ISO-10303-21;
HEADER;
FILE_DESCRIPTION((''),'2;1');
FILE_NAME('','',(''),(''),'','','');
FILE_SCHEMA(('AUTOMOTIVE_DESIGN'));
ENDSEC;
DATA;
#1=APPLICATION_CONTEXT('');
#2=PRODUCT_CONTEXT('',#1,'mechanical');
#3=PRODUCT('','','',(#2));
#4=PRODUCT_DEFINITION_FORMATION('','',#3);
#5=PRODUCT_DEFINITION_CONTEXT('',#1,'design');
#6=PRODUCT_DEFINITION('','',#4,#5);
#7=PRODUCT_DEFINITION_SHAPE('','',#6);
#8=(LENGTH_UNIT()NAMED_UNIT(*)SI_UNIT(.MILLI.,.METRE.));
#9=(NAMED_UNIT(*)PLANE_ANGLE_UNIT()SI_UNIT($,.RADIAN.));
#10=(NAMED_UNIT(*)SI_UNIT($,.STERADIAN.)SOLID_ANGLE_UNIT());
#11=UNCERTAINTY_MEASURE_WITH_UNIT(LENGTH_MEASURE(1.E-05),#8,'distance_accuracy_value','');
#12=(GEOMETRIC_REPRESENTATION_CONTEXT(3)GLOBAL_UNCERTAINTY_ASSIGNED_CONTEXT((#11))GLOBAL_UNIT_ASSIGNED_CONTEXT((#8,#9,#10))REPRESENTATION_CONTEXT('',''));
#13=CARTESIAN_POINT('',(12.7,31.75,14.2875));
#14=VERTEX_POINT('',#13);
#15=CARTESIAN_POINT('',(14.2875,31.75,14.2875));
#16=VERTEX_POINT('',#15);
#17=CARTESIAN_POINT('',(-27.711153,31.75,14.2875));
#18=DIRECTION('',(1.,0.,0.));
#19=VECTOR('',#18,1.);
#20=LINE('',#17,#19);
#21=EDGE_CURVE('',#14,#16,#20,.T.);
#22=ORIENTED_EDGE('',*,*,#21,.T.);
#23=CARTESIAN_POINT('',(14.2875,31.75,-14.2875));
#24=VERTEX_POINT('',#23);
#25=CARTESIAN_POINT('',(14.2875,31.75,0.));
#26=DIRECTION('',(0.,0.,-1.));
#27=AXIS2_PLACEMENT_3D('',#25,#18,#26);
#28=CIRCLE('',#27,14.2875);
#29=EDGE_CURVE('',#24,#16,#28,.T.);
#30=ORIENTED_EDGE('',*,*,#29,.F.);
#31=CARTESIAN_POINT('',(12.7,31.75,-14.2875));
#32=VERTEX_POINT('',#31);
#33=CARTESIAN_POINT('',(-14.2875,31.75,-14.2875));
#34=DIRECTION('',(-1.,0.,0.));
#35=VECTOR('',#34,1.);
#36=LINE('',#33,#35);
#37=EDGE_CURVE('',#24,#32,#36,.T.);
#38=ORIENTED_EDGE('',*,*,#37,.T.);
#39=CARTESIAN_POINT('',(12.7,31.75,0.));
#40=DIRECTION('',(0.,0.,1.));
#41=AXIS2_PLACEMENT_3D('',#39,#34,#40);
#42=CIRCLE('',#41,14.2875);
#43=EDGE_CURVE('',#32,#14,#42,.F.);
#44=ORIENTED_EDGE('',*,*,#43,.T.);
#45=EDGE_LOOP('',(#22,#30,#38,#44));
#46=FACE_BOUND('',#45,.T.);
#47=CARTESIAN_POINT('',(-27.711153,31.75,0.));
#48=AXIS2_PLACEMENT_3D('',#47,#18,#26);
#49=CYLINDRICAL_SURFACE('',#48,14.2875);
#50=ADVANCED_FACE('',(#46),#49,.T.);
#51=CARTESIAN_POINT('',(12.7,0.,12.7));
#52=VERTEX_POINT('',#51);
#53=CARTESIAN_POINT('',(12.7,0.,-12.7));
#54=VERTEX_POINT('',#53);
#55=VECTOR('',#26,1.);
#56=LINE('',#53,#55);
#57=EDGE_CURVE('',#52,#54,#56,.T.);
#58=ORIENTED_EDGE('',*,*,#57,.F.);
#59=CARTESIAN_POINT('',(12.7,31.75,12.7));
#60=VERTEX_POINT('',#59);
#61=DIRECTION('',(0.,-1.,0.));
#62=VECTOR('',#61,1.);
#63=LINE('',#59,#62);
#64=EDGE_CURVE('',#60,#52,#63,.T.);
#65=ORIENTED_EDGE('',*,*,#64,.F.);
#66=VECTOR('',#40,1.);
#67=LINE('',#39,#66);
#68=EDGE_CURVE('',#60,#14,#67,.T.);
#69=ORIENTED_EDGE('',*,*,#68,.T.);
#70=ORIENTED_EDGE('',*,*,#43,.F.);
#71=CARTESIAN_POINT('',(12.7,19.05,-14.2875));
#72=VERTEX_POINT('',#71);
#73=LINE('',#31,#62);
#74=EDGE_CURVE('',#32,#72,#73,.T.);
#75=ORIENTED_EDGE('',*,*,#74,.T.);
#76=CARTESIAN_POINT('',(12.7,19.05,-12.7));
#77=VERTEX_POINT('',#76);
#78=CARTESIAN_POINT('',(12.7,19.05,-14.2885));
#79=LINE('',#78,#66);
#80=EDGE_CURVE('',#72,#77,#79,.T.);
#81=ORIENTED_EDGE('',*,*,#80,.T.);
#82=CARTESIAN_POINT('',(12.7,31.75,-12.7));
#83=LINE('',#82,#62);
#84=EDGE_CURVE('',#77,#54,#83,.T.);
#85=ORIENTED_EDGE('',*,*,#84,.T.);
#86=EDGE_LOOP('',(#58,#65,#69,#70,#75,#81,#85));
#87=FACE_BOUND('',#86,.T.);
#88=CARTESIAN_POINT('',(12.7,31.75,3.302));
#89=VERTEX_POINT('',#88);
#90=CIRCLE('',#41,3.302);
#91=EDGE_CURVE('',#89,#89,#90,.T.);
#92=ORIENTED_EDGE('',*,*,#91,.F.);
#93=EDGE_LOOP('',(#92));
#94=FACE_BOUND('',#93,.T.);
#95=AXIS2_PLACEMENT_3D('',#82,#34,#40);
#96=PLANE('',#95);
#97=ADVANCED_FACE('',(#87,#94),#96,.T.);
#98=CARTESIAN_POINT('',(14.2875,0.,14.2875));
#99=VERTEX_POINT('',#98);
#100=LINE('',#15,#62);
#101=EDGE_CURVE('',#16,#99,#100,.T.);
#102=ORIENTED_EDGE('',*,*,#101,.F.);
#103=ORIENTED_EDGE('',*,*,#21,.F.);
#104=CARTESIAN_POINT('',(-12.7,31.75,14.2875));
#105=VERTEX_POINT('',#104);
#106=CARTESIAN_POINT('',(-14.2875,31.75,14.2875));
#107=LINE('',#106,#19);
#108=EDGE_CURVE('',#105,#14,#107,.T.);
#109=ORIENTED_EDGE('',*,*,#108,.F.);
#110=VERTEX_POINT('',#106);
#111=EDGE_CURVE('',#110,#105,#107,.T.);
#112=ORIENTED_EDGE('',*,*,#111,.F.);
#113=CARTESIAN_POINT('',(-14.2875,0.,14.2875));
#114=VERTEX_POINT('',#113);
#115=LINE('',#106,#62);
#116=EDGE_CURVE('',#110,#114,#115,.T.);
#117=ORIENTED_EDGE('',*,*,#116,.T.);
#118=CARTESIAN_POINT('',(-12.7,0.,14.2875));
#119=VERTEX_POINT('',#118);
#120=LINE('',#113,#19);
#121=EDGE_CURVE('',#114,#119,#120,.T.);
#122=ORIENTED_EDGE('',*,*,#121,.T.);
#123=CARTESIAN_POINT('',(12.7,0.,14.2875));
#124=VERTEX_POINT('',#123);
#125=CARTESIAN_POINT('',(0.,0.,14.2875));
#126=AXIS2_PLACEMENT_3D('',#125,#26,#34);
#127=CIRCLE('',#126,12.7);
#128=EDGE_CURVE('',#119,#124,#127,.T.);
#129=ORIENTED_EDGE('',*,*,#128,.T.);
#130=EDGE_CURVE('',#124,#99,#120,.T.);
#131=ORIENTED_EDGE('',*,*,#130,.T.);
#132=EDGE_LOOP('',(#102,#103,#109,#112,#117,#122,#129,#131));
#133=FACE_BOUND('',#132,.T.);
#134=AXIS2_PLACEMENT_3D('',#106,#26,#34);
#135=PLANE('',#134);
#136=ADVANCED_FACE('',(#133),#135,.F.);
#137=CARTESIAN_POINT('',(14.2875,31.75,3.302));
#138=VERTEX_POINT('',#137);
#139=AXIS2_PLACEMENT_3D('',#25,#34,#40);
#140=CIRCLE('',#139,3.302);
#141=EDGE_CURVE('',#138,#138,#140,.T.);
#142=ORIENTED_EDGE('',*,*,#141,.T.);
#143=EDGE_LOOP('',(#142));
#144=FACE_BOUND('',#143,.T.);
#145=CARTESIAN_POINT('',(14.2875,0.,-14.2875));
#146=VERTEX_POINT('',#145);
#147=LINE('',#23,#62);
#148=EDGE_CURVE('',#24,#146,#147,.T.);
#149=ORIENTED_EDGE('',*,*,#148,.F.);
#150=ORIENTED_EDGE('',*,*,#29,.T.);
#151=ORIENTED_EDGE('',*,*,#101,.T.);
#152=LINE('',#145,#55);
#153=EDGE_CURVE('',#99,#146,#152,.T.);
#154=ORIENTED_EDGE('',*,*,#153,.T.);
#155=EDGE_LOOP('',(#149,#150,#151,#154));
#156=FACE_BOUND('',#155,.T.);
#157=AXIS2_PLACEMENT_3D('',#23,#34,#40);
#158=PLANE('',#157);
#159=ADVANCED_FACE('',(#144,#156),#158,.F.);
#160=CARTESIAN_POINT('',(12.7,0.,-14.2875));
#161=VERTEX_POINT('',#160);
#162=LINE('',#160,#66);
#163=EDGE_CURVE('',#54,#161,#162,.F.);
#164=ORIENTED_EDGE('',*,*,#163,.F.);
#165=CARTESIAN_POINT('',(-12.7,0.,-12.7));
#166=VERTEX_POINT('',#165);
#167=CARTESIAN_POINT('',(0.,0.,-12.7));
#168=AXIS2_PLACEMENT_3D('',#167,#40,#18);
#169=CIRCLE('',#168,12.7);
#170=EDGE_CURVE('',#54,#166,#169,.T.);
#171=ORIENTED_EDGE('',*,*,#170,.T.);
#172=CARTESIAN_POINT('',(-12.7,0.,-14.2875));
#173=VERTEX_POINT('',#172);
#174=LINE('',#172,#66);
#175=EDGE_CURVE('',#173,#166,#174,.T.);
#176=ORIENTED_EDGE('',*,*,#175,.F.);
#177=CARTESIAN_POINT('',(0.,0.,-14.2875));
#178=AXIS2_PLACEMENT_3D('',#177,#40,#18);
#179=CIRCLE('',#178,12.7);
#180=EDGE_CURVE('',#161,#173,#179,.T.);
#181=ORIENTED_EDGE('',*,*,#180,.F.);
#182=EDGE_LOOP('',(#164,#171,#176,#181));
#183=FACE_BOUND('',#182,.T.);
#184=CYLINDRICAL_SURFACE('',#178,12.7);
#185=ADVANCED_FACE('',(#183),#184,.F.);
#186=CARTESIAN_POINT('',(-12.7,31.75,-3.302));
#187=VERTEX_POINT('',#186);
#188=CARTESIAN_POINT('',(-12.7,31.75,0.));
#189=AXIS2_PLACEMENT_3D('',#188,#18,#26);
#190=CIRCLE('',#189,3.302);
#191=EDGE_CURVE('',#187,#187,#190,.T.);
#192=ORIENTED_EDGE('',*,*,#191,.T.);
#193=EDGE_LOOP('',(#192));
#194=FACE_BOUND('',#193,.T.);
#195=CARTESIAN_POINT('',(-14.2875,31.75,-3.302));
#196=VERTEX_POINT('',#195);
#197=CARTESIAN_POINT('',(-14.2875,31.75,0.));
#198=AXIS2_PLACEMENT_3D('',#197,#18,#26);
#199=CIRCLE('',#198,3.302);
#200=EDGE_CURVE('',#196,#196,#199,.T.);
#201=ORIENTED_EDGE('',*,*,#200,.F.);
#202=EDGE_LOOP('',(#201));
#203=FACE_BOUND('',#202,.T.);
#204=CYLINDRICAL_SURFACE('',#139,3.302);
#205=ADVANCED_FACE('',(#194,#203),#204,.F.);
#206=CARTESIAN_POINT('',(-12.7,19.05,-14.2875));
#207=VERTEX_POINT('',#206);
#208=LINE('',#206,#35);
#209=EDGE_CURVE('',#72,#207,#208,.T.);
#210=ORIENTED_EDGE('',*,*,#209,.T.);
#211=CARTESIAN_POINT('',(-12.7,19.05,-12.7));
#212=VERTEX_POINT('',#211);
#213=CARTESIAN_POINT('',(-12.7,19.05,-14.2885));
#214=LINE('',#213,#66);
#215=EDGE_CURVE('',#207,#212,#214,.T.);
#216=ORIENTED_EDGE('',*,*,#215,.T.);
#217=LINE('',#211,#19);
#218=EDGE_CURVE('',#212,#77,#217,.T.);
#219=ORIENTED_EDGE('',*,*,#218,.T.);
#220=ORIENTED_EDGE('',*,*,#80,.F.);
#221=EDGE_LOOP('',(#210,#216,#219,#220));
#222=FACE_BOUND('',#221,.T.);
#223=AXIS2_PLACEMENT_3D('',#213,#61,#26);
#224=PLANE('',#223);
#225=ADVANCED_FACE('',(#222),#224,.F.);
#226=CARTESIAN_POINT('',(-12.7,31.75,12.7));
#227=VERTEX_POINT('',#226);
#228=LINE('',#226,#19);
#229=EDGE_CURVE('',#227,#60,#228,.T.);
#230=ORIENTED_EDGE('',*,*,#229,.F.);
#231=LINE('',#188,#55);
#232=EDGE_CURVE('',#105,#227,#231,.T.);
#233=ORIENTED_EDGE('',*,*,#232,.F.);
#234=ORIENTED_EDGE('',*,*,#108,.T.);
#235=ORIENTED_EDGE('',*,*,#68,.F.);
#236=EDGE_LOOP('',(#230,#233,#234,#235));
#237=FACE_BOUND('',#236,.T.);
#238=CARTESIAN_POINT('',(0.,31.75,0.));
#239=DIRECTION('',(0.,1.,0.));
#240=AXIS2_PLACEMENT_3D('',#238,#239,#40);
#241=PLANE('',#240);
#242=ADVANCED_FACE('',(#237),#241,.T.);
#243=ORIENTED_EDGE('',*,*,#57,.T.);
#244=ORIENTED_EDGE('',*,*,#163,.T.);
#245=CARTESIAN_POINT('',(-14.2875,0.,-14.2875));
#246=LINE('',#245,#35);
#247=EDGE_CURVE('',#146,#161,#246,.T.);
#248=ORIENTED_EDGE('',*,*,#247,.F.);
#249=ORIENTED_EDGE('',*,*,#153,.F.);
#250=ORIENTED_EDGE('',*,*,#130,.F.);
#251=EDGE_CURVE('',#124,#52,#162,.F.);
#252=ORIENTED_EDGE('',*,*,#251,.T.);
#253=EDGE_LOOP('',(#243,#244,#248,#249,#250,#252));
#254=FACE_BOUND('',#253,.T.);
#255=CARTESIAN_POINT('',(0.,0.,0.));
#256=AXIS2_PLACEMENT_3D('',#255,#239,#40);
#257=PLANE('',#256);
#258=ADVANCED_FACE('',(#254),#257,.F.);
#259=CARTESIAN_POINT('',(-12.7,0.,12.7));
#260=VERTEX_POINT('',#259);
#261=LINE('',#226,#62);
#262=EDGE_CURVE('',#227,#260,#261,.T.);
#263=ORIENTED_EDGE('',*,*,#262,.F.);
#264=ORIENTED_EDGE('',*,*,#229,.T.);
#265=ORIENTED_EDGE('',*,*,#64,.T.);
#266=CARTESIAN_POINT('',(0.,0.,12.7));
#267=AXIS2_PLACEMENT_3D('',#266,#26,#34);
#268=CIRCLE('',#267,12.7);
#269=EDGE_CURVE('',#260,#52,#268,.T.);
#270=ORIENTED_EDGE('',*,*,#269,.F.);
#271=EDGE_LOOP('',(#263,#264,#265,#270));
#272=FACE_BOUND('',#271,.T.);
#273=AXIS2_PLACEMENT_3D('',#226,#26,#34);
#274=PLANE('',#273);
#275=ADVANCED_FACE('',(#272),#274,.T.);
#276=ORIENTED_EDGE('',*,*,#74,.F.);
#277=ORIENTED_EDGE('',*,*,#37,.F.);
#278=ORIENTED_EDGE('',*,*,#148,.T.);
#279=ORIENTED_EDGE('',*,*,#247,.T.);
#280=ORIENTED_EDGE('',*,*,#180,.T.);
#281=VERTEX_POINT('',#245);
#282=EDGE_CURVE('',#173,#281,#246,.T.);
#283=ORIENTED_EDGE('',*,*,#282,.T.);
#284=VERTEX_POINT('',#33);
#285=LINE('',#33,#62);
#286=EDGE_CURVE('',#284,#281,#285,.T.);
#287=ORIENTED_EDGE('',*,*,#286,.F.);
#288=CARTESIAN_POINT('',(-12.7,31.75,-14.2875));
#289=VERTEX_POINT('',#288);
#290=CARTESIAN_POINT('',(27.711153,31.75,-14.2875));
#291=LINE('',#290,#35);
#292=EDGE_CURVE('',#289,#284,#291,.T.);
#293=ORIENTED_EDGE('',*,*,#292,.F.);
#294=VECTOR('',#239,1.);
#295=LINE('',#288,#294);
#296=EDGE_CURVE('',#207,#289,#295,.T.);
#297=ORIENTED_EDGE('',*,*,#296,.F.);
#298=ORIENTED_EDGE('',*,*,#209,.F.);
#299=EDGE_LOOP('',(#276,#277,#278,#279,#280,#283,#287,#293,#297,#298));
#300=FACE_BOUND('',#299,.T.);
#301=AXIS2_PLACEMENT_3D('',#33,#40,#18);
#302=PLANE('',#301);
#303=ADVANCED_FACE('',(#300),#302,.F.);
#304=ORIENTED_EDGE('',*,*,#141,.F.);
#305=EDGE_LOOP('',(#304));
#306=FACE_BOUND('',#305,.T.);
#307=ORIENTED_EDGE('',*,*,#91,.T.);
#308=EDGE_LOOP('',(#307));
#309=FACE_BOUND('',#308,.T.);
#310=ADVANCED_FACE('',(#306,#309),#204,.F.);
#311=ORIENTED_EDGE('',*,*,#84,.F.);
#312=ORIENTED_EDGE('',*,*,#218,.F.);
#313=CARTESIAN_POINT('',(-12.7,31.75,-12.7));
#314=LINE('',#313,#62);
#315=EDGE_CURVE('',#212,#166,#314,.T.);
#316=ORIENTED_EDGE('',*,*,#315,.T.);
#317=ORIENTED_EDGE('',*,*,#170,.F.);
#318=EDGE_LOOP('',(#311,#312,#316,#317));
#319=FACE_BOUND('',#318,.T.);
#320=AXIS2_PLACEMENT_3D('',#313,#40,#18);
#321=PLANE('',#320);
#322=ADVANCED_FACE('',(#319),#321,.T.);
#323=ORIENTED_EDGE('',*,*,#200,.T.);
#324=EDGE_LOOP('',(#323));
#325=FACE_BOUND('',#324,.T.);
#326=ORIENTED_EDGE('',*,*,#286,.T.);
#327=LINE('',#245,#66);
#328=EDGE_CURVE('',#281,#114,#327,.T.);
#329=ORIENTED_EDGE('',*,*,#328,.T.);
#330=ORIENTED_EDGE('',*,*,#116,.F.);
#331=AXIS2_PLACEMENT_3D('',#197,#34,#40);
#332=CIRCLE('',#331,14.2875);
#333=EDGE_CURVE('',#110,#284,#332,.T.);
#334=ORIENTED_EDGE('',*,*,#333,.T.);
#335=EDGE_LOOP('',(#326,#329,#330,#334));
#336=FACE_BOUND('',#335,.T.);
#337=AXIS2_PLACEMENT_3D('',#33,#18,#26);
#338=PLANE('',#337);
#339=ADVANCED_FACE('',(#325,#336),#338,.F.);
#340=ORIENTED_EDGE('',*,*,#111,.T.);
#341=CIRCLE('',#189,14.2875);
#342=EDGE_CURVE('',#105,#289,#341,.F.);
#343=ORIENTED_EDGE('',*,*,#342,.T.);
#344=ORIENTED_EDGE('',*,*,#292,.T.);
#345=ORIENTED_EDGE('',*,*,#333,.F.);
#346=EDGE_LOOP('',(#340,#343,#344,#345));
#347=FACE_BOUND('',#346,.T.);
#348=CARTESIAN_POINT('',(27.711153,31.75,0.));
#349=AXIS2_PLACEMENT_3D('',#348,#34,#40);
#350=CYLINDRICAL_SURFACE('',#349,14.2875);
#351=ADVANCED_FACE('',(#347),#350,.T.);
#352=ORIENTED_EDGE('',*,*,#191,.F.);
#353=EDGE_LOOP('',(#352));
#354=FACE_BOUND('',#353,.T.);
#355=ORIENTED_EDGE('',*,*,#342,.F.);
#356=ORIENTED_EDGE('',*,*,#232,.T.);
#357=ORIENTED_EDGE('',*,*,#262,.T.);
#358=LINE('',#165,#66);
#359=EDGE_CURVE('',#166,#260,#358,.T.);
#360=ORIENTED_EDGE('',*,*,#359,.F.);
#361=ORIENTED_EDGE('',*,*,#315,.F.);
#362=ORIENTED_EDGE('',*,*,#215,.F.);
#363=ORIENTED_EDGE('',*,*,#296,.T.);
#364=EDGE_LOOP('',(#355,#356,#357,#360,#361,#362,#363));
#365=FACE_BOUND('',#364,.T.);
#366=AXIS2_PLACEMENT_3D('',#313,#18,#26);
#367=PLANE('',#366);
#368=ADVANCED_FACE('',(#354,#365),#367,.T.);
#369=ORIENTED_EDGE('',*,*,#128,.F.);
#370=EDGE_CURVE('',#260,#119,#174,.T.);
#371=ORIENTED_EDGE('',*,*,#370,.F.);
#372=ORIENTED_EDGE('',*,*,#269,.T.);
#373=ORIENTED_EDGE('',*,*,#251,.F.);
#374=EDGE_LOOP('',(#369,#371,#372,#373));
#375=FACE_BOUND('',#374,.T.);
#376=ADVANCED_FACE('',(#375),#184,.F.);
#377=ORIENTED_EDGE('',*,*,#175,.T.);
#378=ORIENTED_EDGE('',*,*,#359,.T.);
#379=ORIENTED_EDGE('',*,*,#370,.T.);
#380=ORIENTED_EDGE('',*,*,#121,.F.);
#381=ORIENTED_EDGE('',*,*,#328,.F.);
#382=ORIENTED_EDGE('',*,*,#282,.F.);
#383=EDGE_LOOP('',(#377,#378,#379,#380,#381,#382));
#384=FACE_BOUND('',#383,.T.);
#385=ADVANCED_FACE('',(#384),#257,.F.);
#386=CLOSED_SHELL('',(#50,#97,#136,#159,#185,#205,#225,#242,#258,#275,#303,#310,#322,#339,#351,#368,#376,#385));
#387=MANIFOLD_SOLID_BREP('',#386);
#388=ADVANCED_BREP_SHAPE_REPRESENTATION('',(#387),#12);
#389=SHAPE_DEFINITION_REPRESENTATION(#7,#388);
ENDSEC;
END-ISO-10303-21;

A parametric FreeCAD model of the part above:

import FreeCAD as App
import Part
import Sketcher

V = App.Vector
Q = App.Units.Quantity


def add_polygon(sketch, points):
    """Adds a closed chain of lines whose ends are joined by coincident constraints."""
    first, n = sketch.GeometryCount, len(points)
    for a, b in zip(points, points[1:] + points[:1]):
        sketch.addGeometry(Part.LineSegment(App.Vector(*a, 0), App.Vector(*b, 0)), False)
    for i in range(n):
        sketch.addConstraint(Sketcher.Constraint("Coincident", first + i, 2, first + (i + 1) % n, 1))

doc = App.newDocument("Part")
params = doc.addObject("Spreadsheet::Sheet", "Params")
for row, (alias, value) in enumerate([
    ("sketch1_width", "1 in"),
    ("sketch1_width2", "1.125 in"),
    ("pad1_length", "1.25 in"),
    ("sketch2_diameter", "1.125 in"),
    ("pad2_length", "0.0625 in"),
    ("sketch3_diameter", "1.125 in"),
    ("pad3_length", "0.0625 in"),
    ("sketch4_diameter", "0.26 in"),
    ("sketch5_diameter", "1 in"),
    ("sketch6_width", "1 in"),
    ("sketch6_height", "0.5 in"),
], start=1):
    params.set(f"A{row}", alias)
    params.set(f"B{row}", "=" + value)
    params.setAlias(f"B{row}", alias)

body = doc.addObject("PartDesign::Body", "Body")

# Sketch on XZ plane
sketch1 = body.newObject("Sketcher::SketchObject", "Sketch")
sketch1.AttachmentSupport = (doc.getObject("XZ_Plane"), [""])
sketch1.MapMode = "FlatFace"
add_polygon(sketch1, [(-14, -14), (-14, 14), (14, 14), (14, -14)])  # lines 0-3
add_polygon(sketch1, [(13, 13), (-13, 13), (-13, -13), (13, -13)])  # lines 4-7
sketch1.addConstraint([
    Sketcher.Constraint("Vertical", 0),
    Sketcher.Constraint("Horizontal", 1),
    Sketcher.Constraint("Vertical", 2),
    Sketcher.Constraint("Horizontal", 3),
    Sketcher.Constraint("Horizontal", 4),
    Sketcher.Constraint("Vertical", 5),
    Sketcher.Constraint("Horizontal", 6),
    Sketcher.Constraint("Vertical", 7),
    Sketcher.Constraint("Symmetric", 0, 2, 2, 2, -1, 1),
    Sketcher.Constraint("Symmetric", 4, 2, 6, 2, -1, 1),
    Sketcher.Constraint("Equal", 3, 0),
    Sketcher.Constraint("Equal", 6, 5),
    Sketcher.Constraint("DistanceX", 4, 2, 4, 1, Q("1 in")),
    Sketcher.Constraint("DistanceX", 1, 1, 1, 2, Q("1.125 in")),
])
sketch1.setExpression("Constraints[20]", "Params.sketch1_width")
sketch1.setExpression("Constraints[21]", "Params.sketch1_width2")
pad1 = body.newObject("PartDesign::Pad", "Pad")
pad1.Profile = sketch1
pad1.setExpression("Length", "Params.pad1_length")
pad1.Reversed = True

# Sketch on YZ plane
sketch2 = body.newObject("Sketcher::SketchObject", "Sketch001")
sketch2.AttachmentSupport = (doc.getObject("YZ_Plane"), [""])
sketch2.MapMode = "FlatFace"
sketch2.AttachmentOffset = App.Placement(V(0, 0, -0.5625 * 25.4), App.Rotation())
sketch2.addGeometry(Part.Circle(V(32, 0, 0), V(0, 0, 1), 14), False)
sketch2.addConstraint([
    Sketcher.Constraint("PointOnObject", 0, 3, -1),
    Sketcher.Constraint("Diameter", 0, Q("1.125 in")),
    Sketcher.Constraint("DistanceX", -1, 1, 0, 3, Q("1.25 in")),
])
sketch2.setExpression("Constraints[1]", "Params.sketch2_diameter")
pad2 = body.newObject("PartDesign::Pad", "Pad001")
pad2.Profile = sketch2
pad2.setExpression("Length", "Params.pad2_length")

# Sketch on YZ plane
sketch3 = body.newObject("Sketcher::SketchObject", "Sketch002")
sketch3.AttachmentSupport = (doc.getObject("YZ_Plane"), [""])
sketch3.MapMode = "FlatFace"
sketch3.AttachmentOffset = App.Placement(V(0, 0, 0.5 * 25.4), App.Rotation())
sketch3.addGeometry(Part.Circle(V(32, 0, 0), V(0, 0, 1), 14), False)
sketch3.addConstraint([
    Sketcher.Constraint("PointOnObject", 0, 3, -1),
    Sketcher.Constraint("Diameter", 0, Q("1.125 in")),
    Sketcher.Constraint("DistanceX", -1, 1, 0, 3, Q("1.25 in")),
])
sketch3.setExpression("Constraints[1]", "Params.sketch3_diameter")
pad3 = body.newObject("PartDesign::Pad", "Pad002")
pad3.Profile = sketch3
pad3.setExpression("Length", "Params.pad3_length")

# Sketch on YZ plane
sketch4 = body.newObject("Sketcher::SketchObject", "Sketch003")
sketch4.AttachmentSupport = (doc.getObject("YZ_Plane"), [""])
sketch4.MapMode = "FlatFace"
sketch4.AttachmentOffset = App.Placement(V(0, 0, -0.5625 * 25.4), App.Rotation())
sketch4.addGeometry(Part.Circle(V(31.8, 0, 0), V(0, 0, 1), 3.3), False)
sketch4.addConstraint([
    Sketcher.Constraint("PointOnObject", 0, 3, -1),
    Sketcher.Constraint("Diameter", 0, Q("0.26 in")),
    Sketcher.Constraint("DistanceX", -1, 1, 0, 3, Q("1.25 in")),
])
sketch4.setExpression("Constraints[1]", "Params.sketch4_diameter")
pocket1 = body.newObject("PartDesign::Pocket", "Pocket")
pocket1.Profile = sketch4
pocket1.Type = "ThroughAll"
pocket1.Midplane = True

# Sketch on XY plane
sketch5 = body.newObject("Sketcher::SketchObject", "Sketch004")
sketch5.AttachmentSupport = (doc.getObject("XY_Plane"), [""])
sketch5.MapMode = "FlatFace"
sketch5.AttachmentOffset = App.Placement(V(0, 0, 0.5625 * 25.4), App.Rotation())
sketch5.addGeometry(Part.Circle(V(0, 0, 0), V(0, 0, 1), 13), False)
sketch5.addConstraint([
    Sketcher.Constraint("Coincident", 0, 3, -1, 1),
    Sketcher.Constraint("Diameter", 0, Q("1 in")),
])
sketch5.setExpression("Constraints[1]", "Params.sketch5_diameter")
pocket2 = body.newObject("PartDesign::Pocket", "Pocket001")
pocket2.Profile = sketch5
pocket2.Type = "ThroughAll"
pocket2.Midplane = True

# Sketch on XY plane
sketch6 = body.newObject("Sketcher::SketchObject", "Sketch005")
sketch6.AttachmentSupport = (doc.getObject("XY_Plane"), [""])
sketch6.MapMode = "FlatFace"
sketch6.AttachmentOffset = App.Placement(V(0, 0, -0.5 * 25.4), App.Rotation())
add_polygon(sketch6, [(-13, 32), (-13, 19), (13, 19), (13, 32)])  # lines 0-3
sketch6.addConstraint([
    Sketcher.Constraint("Vertical", 0),
    Sketcher.Constraint("Horizontal", 1),
    Sketcher.Constraint("Vertical", 2),
    Sketcher.Constraint("Horizontal", 3),
    Sketcher.Constraint("DistanceX", 1, 1, 1, 2, Q("1 in")),
    Sketcher.Constraint("DistanceY", 0, 2, 0, 1, Q("0.5 in")),
    Sketcher.Constraint("DistanceX", 0, 2, -1, 1, Q("0.5 in")),
    Sketcher.Constraint("DistanceY", -1, 1, 0, 2, Q("0.75 in")),
])
sketch6.setExpression("Constraints[8]", "Params.sketch6_width")
sketch6.setExpression("Constraints[9]", "Params.sketch6_height")
pocket3 = body.newObject("PartDesign::Pocket", "Pocket002")
pocket3.Profile = sketch6
pocket3.Type = "UpToFirst"

doc.recompute()
